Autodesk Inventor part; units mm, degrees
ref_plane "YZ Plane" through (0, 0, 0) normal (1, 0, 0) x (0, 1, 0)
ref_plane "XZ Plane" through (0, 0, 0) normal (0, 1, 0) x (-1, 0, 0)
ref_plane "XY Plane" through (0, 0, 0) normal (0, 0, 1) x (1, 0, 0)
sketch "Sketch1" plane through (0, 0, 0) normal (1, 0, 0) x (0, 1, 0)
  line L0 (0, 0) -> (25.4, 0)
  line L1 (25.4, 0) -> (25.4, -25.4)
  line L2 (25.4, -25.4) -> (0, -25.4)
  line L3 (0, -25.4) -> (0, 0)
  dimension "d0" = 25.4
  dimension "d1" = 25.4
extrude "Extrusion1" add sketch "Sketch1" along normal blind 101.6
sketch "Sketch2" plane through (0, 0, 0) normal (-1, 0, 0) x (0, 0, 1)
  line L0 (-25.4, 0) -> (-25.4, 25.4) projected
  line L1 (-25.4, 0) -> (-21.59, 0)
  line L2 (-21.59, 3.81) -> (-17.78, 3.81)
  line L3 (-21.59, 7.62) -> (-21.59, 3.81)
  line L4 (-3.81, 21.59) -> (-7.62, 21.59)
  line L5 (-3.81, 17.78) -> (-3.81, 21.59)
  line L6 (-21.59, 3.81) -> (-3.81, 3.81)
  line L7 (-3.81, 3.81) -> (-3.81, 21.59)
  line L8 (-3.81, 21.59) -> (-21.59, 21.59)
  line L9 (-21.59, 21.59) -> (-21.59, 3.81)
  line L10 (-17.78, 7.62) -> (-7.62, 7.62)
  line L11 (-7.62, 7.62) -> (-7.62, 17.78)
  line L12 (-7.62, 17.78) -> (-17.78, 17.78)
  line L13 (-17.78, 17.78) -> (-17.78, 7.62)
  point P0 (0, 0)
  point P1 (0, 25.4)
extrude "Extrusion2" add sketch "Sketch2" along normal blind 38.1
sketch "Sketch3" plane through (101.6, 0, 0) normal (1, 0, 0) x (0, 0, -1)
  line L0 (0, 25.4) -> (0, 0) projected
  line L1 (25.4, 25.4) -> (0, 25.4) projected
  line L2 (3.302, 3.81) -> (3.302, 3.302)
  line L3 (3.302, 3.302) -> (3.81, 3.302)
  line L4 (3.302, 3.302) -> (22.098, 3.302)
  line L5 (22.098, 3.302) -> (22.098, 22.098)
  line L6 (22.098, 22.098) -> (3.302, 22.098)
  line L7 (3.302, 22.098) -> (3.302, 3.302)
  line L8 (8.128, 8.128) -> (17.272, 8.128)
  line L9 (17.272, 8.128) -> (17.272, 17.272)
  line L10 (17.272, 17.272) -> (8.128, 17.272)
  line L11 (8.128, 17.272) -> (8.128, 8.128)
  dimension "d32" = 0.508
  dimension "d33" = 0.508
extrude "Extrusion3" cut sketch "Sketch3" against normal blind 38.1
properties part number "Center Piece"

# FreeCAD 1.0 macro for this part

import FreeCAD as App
import Part
import Sketcher
Q = App.Units.Quantity

doc = App.newDocument("Part")
params = doc.addObject("Spreadsheet::Sheet", "Params")
for row, (alias, value) in enumerate([
    ("sketch1_width", "1 in"),
    ("pad1_length", "4 in"),
    ("sketch2_width", "0.7 in"),
    ("sketch2_width2", "0.4 in"),
    ("pad2_length", "1.5 in"),
    ("sketch3_width", "0.74 in"),
    ("sketch3_width2", "0.36 in"),
    ("pocket1_length", "1.5 in"),
], start=1):
    params.set(f"A{row}", alias)
    params.set(f"B{row}", "=" + value)
    params.setAlias(f"B{row}", alias)

body = doc.addObject("PartDesign::Body", "Body")

sketch1 = doc.addObject("Sketcher::SketchObject", "Sketch")
body.addObject(sketch1)
sketch1.AttachmentSupport = (doc.YZ_Plane, [""])
sketch1.MapMode = "FlatFace"
sketch1.addGeometry([
    Part.LineSegment(App.Vector(25, 0, 0), App.Vector(0, 0, 0)),
    Part.LineSegment(App.Vector(0, 0, 0), App.Vector(0, -25, 0)),
    Part.LineSegment(App.Vector(0, -25, 0), App.Vector(25, -25, 0)),
    Part.LineSegment(App.Vector(25, -25, 0), App.Vector(25, 0, 0)),
], False)
sketch1.addConstraint([
    Sketcher.Constraint("Coincident", 0, 2, 1, 1),
    Sketcher.Constraint("Coincident", 1, 2, 2, 1),
    Sketcher.Constraint("Coincident", 2, 2, 3, 1),
    Sketcher.Constraint("Coincident", 3, 2, 0, 1),
    Sketcher.Constraint("Horizontal", 0),
    Sketcher.Constraint("Vertical", 1),
    Sketcher.Constraint("Horizontal", 2),
    Sketcher.Constraint("Vertical", 3),
    Sketcher.Constraint("Coincident", 0, 2, -1, 1),
    Sketcher.Constraint("Equal", 2, 1),
    Sketcher.Constraint("DistanceX", 0, 2, 0, 1, Q("1 in")),
])
sketch1.setExpression("Constraints[10]", "Params.sketch1_width")
pad1 = doc.addObject("PartDesign::Pad", "Pad")
body.addObject(pad1)
pad1.Profile = sketch1
pad1.setExpression("Length", "Params.pad1_length")

sketch2 = doc.addObject("Sketcher::SketchObject", "Sketch001")
body.addObject(sketch2)
sketch2.AttachmentSupport = (doc.YZ_Plane, [""])
sketch2.MapMode = "FlatFace"
sketch2.addGeometry([
    Part.LineSegment(App.Vector(22, -22, 0), App.Vector(4, -22, 0)),
    Part.LineSegment(App.Vector(4, -22, 0), App.Vector(4, -4, 0)),
    Part.LineSegment(App.Vector(4, -4, 0), App.Vector(22, -4, 0)),
    Part.LineSegment(App.Vector(22, -4, 0), App.Vector(22, -22, 0)),
    Part.LineSegment(App.Vector(8, -8, 0), App.Vector(8, -18, 0)),
    Part.LineSegment(App.Vector(8, -18, 0), App.Vector(18, -18, 0)),
    Part.LineSegment(App.Vector(18, -18, 0), App.Vector(18, -8, 0)),
    Part.LineSegment(App.Vector(18, -8, 0), App.Vector(8, -8, 0)),
], False)
sketch2.addConstraint([
    Sketcher.Constraint("Coincident", 0, 2, 1, 1),
    Sketcher.Constraint("Coincident", 1, 2, 2, 1),
    Sketcher.Constraint("Coincident", 2, 2, 3, 1),
    Sketcher.Constraint("Coincident", 3, 2, 0, 1),
    Sketcher.Constraint("Coincident", 4, 2, 5, 1),
    Sketcher.Constraint("Coincident", 5, 2, 6, 1),
    Sketcher.Constraint("Coincident", 6, 2, 7, 1),
    Sketcher.Constraint("Coincident", 7, 2, 4, 1),
    Sketcher.Constraint("Horizontal", 0),
    Sketcher.Constraint("Vertical", 1),
    Sketcher.Constraint("Horizontal", 2),
    Sketcher.Constraint("Vertical", 3),
    Sketcher.Constraint("Vertical", 4),
    Sketcher.Constraint("Horizontal", 5),
    Sketcher.Constraint("Vertical", 6),
    Sketcher.Constraint("Horizontal", 7),
    Sketcher.Constraint("Equal", 2, 1),
    Sketcher.Constraint("Equal", 7, 4),
    Sketcher.Constraint("DistanceX", 0, 2, 0, 1, Q("0.7 in")),
    Sketcher.Constraint("DistanceX", 5, 1, 5, 2, Q("0.4 in")),
    Sketcher.Constraint("DistanceX", -1, 1, 4, 2, Q("0.3 in")),
    Sketcher.Constraint("DistanceY", 4, 2, -1, 1, Q("0.7 in")),
    Sketcher.Constraint("DistanceX", -1, 1, 0, 2, Q("0.15 in")),
    Sketcher.Constraint("DistanceY", 0, 2, -1, 1, Q("0.85 in")),
])
sketch2.setExpression("Constraints[18]", "Params.sketch2_width")
sketch2.setExpression("Constraints[19]", "Params.sketch2_width2")
pad2 = doc.addObject("PartDesign::Pad", "Pad001")
body.addObject(pad2)
pad2.Profile = sketch2
pad2.setExpression("Length", "Params.pad2_length")
pad2.Reversed = True

sketch3 = doc.addObject("Sketcher::SketchObject", "Sketch002")
body.addObject(sketch3)
sketch3.AttachmentSupport = (doc.YZ_Plane, [""])
sketch3.MapMode = "FlatFace"
sketch3.AttachmentOffset = App.Placement(App.Vector(0, 0, 4 * 25.4), App.Rotation())
sketch3.addGeometry([
    Part.LineSegment(App.Vector(22, -3, 0), App.Vector(3, -3, 0)),
    Part.LineSegment(App.Vector(3, -3, 0), App.Vector(3, -22, 0)),
    Part.LineSegment(App.Vector(3, -22, 0), App.Vector(22, -22, 0)),
    Part.LineSegment(App.Vector(22, -22, 0), App.Vector(22, -3, 0)),
    Part.LineSegment(App.Vector(8, -17, 0), App.Vector(8, -8, 0)),
    Part.LineSegment(App.Vector(8, -8, 0), App.Vector(17, -8, 0)),
    Part.LineSegment(App.Vector(17, -8, 0), App.Vector(17, -17, 0)),
    Part.LineSegment(App.Vector(17, -17, 0), App.Vector(8, -17, 0)),
], False)
sketch3.addConstraint([
    Sketcher.Constraint("Coincident", 0, 2, 1, 1),
    Sketcher.Constraint("Coincident", 1, 2, 2, 1),
    Sketcher.Constraint("Coincident", 2, 2, 3, 1),
    Sketcher.Constraint("Coincident", 3, 2, 0, 1),
    Sketcher.Constraint("Coincident", 4, 2, 5, 1),
    Sketcher.Constraint("Coincident", 5, 2, 6, 1),
    Sketcher.Constraint("Coincident", 6, 2, 7, 1),
    Sketcher.Constraint("Coincident", 7, 2, 4, 1),
    Sketcher.Constraint("Horizontal", 0),
    Sketcher.Constraint("Vertical", 1),
    Sketcher.Constraint("Horizontal", 2),
    Sketcher.Constraint("Vertical", 3),
    Sketcher.Constraint("Vertical", 4),
    Sketcher.Constraint("Horizontal", 5),
    Sketcher.Constraint("Vertical", 6),
    Sketcher.Constraint("Horizontal", 7),
    Sketcher.Constraint("Equal", 2, 1),
    Sketcher.Constraint("Equal", 7, 4),
    Sketcher.Constraint("DistanceX", 0, 2, 0, 1, Q("0.74 in")),
    Sketcher.Constraint("DistanceX", 5, 1, 5, 2, Q("0.36 in")),
    Sketcher.Constraint("DistanceX", -1, 1, 0, 2, Q("0.13 in")),
    Sketcher.Constraint("DistanceY", 0, 2, -1, 1, Q("0.13 in")),
    Sketcher.Constraint("DistanceX", -1, 1, 4, 2, Q("0.32 in")),
    Sketcher.Constraint("DistanceY", 4, 2, -1, 1, Q("0.32 in")),
])
sketch3.setExpression("Constraints[18]", "Params.sketch3_width")
sketch3.setExpression("Constraints[19]", "Params.sketch3_width2")
pocket1 = doc.addObject("PartDesign::Pocket", "Pocket")
body.addObject(pocket1)
pocket1.Profile = sketch3
pocket1.setExpression("Length", "Params.pocket1_length")

doc.recompute()
